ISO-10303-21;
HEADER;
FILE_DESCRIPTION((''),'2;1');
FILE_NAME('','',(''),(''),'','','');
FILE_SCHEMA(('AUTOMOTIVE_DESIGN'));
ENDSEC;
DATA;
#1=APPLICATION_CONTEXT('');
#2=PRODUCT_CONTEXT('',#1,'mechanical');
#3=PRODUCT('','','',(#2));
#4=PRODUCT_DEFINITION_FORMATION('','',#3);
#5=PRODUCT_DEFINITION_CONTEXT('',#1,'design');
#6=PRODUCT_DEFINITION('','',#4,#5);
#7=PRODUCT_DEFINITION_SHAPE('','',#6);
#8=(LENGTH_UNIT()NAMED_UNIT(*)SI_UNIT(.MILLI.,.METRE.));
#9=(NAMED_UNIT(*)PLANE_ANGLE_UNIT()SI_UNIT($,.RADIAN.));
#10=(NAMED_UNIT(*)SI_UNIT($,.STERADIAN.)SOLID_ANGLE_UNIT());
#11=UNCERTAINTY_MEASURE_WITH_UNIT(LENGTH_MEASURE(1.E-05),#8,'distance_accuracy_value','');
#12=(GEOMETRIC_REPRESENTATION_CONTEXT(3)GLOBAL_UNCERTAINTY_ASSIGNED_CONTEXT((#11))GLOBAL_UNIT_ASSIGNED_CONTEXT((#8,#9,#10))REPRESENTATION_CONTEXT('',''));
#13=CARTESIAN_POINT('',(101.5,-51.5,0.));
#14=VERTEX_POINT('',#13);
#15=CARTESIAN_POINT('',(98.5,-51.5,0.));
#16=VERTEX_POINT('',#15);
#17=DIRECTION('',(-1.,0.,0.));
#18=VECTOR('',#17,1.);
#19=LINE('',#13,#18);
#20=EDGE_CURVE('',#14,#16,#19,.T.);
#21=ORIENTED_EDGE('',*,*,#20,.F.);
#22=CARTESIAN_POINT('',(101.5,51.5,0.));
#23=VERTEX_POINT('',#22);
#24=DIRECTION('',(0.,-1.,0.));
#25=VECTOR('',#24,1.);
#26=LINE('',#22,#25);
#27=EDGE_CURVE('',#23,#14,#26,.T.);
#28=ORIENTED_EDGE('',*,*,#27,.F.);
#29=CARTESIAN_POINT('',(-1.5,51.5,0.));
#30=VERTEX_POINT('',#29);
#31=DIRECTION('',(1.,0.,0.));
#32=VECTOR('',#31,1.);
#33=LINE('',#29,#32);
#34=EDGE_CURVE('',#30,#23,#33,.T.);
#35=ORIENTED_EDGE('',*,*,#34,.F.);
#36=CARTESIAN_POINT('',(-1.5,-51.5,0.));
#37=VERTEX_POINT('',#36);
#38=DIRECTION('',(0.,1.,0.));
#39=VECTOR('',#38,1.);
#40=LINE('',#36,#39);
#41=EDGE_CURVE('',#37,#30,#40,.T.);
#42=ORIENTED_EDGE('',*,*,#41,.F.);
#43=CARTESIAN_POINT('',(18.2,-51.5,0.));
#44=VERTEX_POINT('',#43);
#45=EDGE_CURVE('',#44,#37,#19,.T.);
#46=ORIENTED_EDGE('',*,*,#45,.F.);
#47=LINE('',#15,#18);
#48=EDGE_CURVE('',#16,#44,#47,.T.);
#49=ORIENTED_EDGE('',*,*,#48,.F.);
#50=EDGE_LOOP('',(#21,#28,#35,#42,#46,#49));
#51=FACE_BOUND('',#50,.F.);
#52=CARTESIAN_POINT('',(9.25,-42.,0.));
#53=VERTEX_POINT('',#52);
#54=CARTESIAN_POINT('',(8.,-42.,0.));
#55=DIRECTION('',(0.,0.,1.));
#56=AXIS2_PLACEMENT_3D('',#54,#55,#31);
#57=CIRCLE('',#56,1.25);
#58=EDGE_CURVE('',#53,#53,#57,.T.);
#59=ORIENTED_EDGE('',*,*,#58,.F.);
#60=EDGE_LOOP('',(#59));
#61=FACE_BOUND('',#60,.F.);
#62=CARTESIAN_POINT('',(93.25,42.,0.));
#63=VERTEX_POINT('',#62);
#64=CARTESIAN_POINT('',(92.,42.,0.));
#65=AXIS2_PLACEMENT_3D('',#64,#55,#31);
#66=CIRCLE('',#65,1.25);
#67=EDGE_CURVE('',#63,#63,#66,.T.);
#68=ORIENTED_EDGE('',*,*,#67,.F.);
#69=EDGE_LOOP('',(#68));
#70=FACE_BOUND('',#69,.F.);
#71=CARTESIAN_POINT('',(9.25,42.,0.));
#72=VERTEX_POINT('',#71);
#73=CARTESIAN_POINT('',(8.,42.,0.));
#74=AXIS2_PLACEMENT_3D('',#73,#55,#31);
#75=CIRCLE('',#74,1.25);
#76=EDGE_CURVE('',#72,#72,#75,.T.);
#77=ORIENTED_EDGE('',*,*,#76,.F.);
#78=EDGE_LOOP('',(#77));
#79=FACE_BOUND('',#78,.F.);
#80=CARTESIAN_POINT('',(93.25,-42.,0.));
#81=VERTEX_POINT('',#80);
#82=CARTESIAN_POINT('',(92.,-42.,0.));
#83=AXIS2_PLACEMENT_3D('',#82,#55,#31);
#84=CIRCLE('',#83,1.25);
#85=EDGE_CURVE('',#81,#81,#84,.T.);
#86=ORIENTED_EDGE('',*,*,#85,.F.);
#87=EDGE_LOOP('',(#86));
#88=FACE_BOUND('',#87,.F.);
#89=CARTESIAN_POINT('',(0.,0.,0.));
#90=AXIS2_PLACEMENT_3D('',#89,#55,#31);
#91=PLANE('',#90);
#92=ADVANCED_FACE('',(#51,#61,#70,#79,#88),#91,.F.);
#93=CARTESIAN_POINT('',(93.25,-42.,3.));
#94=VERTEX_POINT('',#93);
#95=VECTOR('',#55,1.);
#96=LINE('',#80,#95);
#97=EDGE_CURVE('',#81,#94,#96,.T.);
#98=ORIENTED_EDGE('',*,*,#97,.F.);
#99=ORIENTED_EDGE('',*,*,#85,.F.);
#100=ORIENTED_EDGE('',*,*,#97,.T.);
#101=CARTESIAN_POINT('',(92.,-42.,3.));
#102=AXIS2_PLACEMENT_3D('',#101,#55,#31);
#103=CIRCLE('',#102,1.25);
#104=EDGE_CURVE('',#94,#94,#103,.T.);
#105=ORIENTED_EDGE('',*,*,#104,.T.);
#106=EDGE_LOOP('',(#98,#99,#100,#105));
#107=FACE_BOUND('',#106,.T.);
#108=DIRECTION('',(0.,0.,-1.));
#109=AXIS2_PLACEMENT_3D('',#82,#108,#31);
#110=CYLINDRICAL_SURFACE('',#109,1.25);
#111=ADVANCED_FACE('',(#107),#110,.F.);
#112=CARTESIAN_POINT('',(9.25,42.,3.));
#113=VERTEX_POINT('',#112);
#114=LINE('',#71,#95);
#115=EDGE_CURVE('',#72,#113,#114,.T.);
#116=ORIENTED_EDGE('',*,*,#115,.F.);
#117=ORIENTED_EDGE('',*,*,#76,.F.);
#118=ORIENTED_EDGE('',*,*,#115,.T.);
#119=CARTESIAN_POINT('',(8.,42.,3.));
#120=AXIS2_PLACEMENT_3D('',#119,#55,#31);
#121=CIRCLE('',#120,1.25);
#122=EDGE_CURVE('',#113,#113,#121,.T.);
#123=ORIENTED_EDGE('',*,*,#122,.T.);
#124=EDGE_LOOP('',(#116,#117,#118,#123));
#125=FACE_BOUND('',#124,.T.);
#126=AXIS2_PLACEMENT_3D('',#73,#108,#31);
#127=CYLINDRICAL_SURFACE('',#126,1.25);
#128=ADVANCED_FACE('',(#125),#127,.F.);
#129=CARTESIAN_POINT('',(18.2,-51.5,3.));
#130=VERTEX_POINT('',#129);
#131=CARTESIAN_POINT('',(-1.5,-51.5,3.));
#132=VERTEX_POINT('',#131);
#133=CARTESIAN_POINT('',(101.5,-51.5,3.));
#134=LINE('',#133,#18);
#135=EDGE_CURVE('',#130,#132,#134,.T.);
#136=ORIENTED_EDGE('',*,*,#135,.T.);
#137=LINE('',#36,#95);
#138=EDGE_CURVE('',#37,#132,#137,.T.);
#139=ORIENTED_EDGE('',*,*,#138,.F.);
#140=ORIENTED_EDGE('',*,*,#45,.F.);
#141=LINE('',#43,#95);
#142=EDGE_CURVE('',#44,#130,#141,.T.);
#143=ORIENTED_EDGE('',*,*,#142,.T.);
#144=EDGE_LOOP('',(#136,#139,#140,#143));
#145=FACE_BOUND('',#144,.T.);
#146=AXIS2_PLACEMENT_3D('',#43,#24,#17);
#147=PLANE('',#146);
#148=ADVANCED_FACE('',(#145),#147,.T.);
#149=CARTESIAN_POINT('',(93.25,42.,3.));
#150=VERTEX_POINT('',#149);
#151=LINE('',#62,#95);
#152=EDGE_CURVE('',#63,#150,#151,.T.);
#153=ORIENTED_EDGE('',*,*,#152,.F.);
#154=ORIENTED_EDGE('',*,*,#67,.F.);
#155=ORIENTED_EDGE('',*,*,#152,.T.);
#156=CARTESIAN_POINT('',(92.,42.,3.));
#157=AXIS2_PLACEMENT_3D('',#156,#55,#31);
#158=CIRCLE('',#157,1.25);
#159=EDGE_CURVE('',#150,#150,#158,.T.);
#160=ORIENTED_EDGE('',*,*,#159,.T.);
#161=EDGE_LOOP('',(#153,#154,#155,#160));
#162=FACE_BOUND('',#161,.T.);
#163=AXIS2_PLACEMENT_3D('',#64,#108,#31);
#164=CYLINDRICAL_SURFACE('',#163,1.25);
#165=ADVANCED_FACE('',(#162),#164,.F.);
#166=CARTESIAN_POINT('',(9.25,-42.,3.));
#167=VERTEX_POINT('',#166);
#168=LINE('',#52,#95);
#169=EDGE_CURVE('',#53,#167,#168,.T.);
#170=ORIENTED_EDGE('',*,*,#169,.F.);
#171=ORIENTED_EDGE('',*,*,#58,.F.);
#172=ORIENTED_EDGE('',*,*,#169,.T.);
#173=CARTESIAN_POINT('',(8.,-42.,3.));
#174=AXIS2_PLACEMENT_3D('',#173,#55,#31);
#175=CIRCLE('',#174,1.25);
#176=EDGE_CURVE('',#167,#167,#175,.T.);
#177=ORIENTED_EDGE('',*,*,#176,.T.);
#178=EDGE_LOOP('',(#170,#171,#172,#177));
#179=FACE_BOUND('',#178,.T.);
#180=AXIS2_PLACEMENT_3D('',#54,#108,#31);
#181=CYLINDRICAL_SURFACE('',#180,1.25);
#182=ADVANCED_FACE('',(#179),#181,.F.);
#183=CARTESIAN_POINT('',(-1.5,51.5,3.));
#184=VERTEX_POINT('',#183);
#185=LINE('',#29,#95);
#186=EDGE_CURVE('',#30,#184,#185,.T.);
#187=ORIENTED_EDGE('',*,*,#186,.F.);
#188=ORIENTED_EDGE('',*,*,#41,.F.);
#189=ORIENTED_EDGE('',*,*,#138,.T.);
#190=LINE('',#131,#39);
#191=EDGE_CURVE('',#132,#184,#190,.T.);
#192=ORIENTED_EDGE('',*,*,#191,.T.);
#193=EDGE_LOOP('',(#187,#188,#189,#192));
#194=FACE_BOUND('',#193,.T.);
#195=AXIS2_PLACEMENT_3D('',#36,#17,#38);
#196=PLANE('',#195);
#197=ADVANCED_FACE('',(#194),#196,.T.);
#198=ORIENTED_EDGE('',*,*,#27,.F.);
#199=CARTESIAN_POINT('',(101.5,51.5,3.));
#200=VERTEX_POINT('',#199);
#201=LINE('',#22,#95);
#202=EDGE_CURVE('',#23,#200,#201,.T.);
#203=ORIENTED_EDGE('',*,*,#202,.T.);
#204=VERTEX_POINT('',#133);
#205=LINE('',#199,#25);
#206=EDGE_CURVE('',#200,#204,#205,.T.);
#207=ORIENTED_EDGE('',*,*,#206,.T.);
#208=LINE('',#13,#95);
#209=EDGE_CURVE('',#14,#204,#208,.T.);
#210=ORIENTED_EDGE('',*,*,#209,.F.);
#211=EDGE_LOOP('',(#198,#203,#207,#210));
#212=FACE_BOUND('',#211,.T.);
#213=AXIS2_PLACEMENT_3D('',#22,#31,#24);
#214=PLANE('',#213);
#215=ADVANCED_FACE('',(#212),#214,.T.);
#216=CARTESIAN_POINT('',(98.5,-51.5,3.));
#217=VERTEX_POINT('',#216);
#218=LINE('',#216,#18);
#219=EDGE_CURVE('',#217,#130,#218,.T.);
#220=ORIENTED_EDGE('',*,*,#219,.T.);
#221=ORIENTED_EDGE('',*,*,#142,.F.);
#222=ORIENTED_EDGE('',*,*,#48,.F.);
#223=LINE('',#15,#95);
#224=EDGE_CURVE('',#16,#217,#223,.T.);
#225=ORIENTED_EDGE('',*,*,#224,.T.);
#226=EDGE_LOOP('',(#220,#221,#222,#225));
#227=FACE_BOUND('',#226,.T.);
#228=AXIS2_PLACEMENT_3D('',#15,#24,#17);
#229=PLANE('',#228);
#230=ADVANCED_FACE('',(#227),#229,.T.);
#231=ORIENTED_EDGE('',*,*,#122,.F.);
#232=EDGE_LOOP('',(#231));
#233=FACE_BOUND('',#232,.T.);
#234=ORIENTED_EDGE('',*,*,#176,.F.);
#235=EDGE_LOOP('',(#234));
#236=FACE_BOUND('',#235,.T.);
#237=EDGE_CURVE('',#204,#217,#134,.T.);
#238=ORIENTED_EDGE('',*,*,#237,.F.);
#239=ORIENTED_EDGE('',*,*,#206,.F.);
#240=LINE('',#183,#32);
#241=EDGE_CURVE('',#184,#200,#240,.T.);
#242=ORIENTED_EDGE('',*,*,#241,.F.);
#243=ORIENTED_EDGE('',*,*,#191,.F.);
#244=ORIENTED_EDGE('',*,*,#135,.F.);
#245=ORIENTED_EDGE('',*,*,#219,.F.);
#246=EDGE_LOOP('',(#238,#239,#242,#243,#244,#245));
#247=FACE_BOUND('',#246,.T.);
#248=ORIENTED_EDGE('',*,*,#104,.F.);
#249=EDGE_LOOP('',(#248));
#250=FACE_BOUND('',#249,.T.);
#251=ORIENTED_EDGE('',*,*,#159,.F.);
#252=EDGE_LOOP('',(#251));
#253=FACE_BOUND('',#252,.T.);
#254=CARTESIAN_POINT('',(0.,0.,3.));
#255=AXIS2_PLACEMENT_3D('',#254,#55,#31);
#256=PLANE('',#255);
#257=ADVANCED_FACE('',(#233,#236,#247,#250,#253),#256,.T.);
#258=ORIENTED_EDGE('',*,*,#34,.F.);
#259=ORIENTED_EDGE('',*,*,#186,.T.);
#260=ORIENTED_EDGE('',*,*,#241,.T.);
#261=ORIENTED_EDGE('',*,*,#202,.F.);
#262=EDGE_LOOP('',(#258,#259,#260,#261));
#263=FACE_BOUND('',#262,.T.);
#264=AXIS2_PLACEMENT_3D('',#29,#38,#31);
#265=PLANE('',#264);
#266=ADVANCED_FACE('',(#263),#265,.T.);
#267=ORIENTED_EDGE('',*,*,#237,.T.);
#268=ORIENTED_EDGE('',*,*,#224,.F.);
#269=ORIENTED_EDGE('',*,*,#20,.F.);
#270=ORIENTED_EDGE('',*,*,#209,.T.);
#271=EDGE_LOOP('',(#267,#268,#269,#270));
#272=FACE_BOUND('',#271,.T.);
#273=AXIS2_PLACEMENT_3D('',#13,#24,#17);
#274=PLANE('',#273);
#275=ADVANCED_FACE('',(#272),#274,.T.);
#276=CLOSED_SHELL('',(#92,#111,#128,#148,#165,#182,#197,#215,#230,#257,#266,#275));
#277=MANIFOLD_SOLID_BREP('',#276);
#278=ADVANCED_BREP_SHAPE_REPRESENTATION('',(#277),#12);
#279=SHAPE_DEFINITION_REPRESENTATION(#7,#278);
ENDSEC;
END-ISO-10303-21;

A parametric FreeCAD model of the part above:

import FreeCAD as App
import Part
import Sketcher
from FreeCAD import Vector

doc = App.newDocument("Part")
body = doc.addObject("PartDesign::Body", "Body")

sketch1 = body.newObject("Sketcher::SketchObject", "Sketch")
sketch1.AttachmentSupport = (doc.getObject("XY_Plane"), [""])
sketch1.MapMode = "FlatFace"
sketch1.addGeometry([
    Part.LineSegment(Vector(-1.5, 51.5, 0), Vector(-1.5, -51.5, 0)),
    Part.LineSegment(Vector(-1.5, -51.5, 0), Vector(101.5, -51.5, 0)),
    Part.LineSegment(Vector(101.5, -51.5, 0), Vector(101.5, 51.5, 0)),
    Part.LineSegment(Vector(101.5, 51.5, 0), Vector(-1.5, 51.5, 0)),
    Part.Circle(Vector(8, -42, 0), Vector(0, 0, 1), 1.2),
    Part.Circle(Vector(92, -42, 0), Vector(0, 0, 1), 1.2),
    Part.Circle(Vector(8, 42, 0), Vector(0, 0, 1), 1.2),
    Part.Circle(Vector(92, 42, 0), Vector(0, 0, 1), 1.2),
], False)
sketch1.addConstraint([
    Sketcher.Constraint("Coincident", 0, 2, 1, 1),
    Sketcher.Constraint("Coincident", 1, 2, 2, 1),
    Sketcher.Constraint("Coincident", 2, 2, 3, 1),
    Sketcher.Constraint("Coincident", 3, 2, 0, 1),
    Sketcher.Constraint("Vertical", 0),
    Sketcher.Constraint("Horizontal", 1),
    Sketcher.Constraint("Vertical", 2),
    Sketcher.Constraint("Horizontal", 3),
    Sketcher.Constraint("Equal", 4, 5),
    Sketcher.Constraint("Equal", 5, 6),
    Sketcher.Constraint("Equal", 6, 7),
    Sketcher.Constraint("Symmetric", 4, 3, 6, 3, -1),
    Sketcher.Constraint("Symmetric", 5, 3, 7, 3, -1),
    Sketcher.Constraint("Horizontal", 4, 3, 5, 3),
    Sketcher.Constraint("Equal", 3, 0),
    Sketcher.Constraint("Diameter", 4, 2.5),
    Sketcher.Constraint("DistanceX", 1, 1, 1, 2, 103.0),
    Sketcher.Constraint("DistanceX", -1, 1, 4, 3, 8.0),
    Sketcher.Constraint("DistanceY", 4, 3, -1, 1, 42.0),
    Sketcher.Constraint("DistanceX", -1, 1, 5, 3, 92.0),
    Sketcher.Constraint("DistanceX", 0, 2, -1, 1, 1.5),
    Sketcher.Constraint("DistanceY", 0, 2, -1, 1, 51.5),
])
pad1 = body.newObject("PartDesign::Pad", "Pad")
pad1.Profile = sketch1
pad1.Length = 3

doc.recompute()
